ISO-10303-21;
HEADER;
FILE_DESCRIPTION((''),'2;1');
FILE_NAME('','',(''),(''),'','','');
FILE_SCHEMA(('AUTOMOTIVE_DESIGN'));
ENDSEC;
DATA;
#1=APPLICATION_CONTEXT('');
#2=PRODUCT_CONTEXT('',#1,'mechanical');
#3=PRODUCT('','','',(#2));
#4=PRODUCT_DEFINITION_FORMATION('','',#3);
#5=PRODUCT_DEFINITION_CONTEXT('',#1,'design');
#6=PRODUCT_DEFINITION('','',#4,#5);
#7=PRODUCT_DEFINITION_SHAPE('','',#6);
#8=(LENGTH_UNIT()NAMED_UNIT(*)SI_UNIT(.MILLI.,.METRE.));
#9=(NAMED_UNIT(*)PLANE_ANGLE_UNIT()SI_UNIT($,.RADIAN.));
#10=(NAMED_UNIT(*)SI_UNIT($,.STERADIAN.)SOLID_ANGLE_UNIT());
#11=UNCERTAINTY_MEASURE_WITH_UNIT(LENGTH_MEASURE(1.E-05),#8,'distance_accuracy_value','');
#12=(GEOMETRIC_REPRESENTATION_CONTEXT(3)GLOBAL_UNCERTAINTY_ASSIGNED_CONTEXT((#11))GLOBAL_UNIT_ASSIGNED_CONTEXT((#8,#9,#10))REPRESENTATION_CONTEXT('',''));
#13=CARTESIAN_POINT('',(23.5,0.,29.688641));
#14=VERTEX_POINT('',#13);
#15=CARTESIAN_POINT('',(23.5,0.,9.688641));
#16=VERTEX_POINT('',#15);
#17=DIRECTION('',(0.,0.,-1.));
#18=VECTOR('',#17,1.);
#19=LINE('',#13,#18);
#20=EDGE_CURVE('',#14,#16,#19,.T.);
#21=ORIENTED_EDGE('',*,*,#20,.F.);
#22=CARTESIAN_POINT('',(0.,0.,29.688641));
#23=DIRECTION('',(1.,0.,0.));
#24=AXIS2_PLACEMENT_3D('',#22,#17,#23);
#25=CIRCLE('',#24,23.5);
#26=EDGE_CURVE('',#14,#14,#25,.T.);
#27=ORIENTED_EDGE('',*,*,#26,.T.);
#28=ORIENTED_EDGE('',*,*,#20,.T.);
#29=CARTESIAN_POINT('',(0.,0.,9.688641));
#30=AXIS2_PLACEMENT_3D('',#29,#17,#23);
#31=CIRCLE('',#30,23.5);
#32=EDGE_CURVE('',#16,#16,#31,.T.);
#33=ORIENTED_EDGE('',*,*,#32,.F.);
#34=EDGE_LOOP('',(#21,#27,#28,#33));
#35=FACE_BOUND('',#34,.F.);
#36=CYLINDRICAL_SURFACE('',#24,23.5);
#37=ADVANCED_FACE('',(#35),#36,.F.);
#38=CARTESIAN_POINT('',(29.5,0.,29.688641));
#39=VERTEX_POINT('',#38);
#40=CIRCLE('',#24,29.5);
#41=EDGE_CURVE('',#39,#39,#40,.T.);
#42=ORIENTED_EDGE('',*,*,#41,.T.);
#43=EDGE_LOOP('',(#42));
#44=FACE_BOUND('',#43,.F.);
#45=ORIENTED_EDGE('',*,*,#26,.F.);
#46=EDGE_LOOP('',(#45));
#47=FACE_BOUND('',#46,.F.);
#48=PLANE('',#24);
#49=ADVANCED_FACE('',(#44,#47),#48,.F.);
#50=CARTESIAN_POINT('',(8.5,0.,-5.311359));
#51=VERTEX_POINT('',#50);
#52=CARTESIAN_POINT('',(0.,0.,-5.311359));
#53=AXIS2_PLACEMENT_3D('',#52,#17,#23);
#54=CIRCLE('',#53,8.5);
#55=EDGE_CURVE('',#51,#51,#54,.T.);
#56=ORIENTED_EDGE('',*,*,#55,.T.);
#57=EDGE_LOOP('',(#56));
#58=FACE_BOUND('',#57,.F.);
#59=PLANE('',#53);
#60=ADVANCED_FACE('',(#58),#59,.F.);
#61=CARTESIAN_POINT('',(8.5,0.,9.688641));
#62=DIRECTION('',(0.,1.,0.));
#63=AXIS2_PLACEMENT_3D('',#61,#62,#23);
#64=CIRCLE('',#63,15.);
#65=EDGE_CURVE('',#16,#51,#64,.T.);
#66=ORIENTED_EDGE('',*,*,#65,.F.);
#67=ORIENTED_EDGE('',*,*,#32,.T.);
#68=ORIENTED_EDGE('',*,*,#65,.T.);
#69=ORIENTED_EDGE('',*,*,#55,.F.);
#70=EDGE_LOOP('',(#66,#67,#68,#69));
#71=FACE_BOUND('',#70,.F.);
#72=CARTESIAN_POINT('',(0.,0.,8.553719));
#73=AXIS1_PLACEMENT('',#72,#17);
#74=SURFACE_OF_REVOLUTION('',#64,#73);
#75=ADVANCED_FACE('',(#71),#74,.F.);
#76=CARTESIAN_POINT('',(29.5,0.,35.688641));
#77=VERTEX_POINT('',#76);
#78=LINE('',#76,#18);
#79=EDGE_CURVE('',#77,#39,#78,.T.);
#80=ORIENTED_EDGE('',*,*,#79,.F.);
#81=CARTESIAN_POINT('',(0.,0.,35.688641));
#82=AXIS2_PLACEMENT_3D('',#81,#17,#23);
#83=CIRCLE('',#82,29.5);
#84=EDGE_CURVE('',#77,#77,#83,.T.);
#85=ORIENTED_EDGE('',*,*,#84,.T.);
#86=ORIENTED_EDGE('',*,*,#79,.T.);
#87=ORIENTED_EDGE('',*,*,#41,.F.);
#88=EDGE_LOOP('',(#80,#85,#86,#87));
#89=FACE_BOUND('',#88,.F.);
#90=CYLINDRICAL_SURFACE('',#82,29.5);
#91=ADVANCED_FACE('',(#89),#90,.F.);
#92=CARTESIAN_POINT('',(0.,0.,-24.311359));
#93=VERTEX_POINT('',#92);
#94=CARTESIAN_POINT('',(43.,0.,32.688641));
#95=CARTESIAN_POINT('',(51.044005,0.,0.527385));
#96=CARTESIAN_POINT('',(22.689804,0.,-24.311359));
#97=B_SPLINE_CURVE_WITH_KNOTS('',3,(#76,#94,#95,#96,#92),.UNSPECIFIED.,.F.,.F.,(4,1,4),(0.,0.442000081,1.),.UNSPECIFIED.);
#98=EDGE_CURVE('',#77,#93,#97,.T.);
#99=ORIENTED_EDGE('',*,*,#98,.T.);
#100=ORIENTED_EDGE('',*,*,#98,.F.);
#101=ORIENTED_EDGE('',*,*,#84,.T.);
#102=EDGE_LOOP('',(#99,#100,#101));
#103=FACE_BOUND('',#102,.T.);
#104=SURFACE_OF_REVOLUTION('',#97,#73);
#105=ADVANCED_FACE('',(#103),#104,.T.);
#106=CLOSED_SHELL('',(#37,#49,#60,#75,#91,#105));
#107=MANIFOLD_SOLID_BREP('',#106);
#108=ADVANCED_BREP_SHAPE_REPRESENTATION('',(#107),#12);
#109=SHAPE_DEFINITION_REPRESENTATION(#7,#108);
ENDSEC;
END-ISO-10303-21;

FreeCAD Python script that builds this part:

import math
import FreeCAD as App
import Part
import Sketcher
Q = App.Units.Quantity

doc = App.newDocument("Part")
body = doc.addObject("PartDesign::Body", "Body")

sketch1 = body.newObject("Sketcher::SketchObject", "Sketch")
sketch1.AttachmentSupport = (doc.getObject("XZ_Plane"), [""])
sketch1.MapMode = "FlatFace"
sketch1.addGeometry(Part.LineSegment(App.Vector(29.5, 29.688641, 0), App.Vector(23.5, 29.688641, 0)), False)
sketch1.addGeometry(Part.LineSegment(App.Vector(23.5, 29.688641, 0), App.Vector(23.5, 9.688641, 0)), False)
sketch1.addGeometry(Part.ArcOfCircle(Part.Circle(App.Vector(8.5, 9.688641, 0), App.Vector(0, 0, 1), 15), math.radians(-90), math.radians(0)), False)
sketch1.addGeometry(Part.LineSegment(App.Vector(8.5, -5.311359, 0), App.Vector(0, -5.311359, 0)), False)
sketch1.addGeometry(Part.LineSegment(App.Vector(0, -5.311359, 0), App.Vector(0, -24.311359, 0)), False)
sketch1.addGeometry(Part.BSplineCurve([App.Vector(29.5, 35.688641, 0), App.Vector(43, 32.688641, 0), App.Vector(51.044005, 0.527385, 0), App.Vector(22.689804, -24.311359, 0), App.Vector(0, -24.311359, 0)], [4, 1, 4], [0, 0.442000081, 1], False, 3, [1, 1, 1, 1, 1], False), False)
sketch1.addGeometry(Part.LineSegment(App.Vector(29.5, 35.688641, 0), App.Vector(29.5, 29.688641, 0)), False)
sketch1.addConstraint(Sketcher.Constraint("Block", 5))
sketch1.addConstraint(Sketcher.Constraint("Coincident", 0, 2, 1, 1))
sketch1.addConstraint(Sketcher.Constraint("Tangent", 1, 2, 2, 2))
sketch1.addConstraint(Sketcher.Constraint("Tangent", 2, 1, 3, 1))
sketch1.addConstraint(Sketcher.Constraint("Coincident", 3, 2, 4, 1))
sketch1.addConstraint(Sketcher.Constraint("Coincident", 4, 2, 5, 2))
sketch1.addConstraint(Sketcher.Constraint("Coincident", 5, 1, 6, 1))
sketch1.addConstraint(Sketcher.Constraint("Coincident", 6, 2, 0, 1))
sketch1.addConstraint(Sketcher.Constraint("Horizontal", 0))
sketch1.addConstraint(Sketcher.Constraint("Vertical", 1))
sketch1.addConstraint(Sketcher.Constraint("Horizontal", 3))
sketch1.addConstraint(Sketcher.Constraint("Vertical", 4))
sketch1.addConstraint(Sketcher.Constraint("Vertical", 6))
sketch1.addConstraint(Sketcher.Constraint("Equal", 0, 6))
sketch1.addConstraint(Sketcher.Constraint("Radius", 2, Q("15 mm")))
sketch1.addConstraint(Sketcher.Constraint("DistanceX", 0, 2, 0, 1, Q("6 mm")))
sketch1.addConstraint(Sketcher.Constraint("DistanceY", 1, 2, 1, 1, Q("20 mm")))
revolution = body.newObject("PartDesign::Revolution", "Revolution")
revolution.Profile = sketch1
revolution.ReferenceAxis = (sketch1, ["V_Axis"])
revolution.Angle = 360

doc.recompute()
